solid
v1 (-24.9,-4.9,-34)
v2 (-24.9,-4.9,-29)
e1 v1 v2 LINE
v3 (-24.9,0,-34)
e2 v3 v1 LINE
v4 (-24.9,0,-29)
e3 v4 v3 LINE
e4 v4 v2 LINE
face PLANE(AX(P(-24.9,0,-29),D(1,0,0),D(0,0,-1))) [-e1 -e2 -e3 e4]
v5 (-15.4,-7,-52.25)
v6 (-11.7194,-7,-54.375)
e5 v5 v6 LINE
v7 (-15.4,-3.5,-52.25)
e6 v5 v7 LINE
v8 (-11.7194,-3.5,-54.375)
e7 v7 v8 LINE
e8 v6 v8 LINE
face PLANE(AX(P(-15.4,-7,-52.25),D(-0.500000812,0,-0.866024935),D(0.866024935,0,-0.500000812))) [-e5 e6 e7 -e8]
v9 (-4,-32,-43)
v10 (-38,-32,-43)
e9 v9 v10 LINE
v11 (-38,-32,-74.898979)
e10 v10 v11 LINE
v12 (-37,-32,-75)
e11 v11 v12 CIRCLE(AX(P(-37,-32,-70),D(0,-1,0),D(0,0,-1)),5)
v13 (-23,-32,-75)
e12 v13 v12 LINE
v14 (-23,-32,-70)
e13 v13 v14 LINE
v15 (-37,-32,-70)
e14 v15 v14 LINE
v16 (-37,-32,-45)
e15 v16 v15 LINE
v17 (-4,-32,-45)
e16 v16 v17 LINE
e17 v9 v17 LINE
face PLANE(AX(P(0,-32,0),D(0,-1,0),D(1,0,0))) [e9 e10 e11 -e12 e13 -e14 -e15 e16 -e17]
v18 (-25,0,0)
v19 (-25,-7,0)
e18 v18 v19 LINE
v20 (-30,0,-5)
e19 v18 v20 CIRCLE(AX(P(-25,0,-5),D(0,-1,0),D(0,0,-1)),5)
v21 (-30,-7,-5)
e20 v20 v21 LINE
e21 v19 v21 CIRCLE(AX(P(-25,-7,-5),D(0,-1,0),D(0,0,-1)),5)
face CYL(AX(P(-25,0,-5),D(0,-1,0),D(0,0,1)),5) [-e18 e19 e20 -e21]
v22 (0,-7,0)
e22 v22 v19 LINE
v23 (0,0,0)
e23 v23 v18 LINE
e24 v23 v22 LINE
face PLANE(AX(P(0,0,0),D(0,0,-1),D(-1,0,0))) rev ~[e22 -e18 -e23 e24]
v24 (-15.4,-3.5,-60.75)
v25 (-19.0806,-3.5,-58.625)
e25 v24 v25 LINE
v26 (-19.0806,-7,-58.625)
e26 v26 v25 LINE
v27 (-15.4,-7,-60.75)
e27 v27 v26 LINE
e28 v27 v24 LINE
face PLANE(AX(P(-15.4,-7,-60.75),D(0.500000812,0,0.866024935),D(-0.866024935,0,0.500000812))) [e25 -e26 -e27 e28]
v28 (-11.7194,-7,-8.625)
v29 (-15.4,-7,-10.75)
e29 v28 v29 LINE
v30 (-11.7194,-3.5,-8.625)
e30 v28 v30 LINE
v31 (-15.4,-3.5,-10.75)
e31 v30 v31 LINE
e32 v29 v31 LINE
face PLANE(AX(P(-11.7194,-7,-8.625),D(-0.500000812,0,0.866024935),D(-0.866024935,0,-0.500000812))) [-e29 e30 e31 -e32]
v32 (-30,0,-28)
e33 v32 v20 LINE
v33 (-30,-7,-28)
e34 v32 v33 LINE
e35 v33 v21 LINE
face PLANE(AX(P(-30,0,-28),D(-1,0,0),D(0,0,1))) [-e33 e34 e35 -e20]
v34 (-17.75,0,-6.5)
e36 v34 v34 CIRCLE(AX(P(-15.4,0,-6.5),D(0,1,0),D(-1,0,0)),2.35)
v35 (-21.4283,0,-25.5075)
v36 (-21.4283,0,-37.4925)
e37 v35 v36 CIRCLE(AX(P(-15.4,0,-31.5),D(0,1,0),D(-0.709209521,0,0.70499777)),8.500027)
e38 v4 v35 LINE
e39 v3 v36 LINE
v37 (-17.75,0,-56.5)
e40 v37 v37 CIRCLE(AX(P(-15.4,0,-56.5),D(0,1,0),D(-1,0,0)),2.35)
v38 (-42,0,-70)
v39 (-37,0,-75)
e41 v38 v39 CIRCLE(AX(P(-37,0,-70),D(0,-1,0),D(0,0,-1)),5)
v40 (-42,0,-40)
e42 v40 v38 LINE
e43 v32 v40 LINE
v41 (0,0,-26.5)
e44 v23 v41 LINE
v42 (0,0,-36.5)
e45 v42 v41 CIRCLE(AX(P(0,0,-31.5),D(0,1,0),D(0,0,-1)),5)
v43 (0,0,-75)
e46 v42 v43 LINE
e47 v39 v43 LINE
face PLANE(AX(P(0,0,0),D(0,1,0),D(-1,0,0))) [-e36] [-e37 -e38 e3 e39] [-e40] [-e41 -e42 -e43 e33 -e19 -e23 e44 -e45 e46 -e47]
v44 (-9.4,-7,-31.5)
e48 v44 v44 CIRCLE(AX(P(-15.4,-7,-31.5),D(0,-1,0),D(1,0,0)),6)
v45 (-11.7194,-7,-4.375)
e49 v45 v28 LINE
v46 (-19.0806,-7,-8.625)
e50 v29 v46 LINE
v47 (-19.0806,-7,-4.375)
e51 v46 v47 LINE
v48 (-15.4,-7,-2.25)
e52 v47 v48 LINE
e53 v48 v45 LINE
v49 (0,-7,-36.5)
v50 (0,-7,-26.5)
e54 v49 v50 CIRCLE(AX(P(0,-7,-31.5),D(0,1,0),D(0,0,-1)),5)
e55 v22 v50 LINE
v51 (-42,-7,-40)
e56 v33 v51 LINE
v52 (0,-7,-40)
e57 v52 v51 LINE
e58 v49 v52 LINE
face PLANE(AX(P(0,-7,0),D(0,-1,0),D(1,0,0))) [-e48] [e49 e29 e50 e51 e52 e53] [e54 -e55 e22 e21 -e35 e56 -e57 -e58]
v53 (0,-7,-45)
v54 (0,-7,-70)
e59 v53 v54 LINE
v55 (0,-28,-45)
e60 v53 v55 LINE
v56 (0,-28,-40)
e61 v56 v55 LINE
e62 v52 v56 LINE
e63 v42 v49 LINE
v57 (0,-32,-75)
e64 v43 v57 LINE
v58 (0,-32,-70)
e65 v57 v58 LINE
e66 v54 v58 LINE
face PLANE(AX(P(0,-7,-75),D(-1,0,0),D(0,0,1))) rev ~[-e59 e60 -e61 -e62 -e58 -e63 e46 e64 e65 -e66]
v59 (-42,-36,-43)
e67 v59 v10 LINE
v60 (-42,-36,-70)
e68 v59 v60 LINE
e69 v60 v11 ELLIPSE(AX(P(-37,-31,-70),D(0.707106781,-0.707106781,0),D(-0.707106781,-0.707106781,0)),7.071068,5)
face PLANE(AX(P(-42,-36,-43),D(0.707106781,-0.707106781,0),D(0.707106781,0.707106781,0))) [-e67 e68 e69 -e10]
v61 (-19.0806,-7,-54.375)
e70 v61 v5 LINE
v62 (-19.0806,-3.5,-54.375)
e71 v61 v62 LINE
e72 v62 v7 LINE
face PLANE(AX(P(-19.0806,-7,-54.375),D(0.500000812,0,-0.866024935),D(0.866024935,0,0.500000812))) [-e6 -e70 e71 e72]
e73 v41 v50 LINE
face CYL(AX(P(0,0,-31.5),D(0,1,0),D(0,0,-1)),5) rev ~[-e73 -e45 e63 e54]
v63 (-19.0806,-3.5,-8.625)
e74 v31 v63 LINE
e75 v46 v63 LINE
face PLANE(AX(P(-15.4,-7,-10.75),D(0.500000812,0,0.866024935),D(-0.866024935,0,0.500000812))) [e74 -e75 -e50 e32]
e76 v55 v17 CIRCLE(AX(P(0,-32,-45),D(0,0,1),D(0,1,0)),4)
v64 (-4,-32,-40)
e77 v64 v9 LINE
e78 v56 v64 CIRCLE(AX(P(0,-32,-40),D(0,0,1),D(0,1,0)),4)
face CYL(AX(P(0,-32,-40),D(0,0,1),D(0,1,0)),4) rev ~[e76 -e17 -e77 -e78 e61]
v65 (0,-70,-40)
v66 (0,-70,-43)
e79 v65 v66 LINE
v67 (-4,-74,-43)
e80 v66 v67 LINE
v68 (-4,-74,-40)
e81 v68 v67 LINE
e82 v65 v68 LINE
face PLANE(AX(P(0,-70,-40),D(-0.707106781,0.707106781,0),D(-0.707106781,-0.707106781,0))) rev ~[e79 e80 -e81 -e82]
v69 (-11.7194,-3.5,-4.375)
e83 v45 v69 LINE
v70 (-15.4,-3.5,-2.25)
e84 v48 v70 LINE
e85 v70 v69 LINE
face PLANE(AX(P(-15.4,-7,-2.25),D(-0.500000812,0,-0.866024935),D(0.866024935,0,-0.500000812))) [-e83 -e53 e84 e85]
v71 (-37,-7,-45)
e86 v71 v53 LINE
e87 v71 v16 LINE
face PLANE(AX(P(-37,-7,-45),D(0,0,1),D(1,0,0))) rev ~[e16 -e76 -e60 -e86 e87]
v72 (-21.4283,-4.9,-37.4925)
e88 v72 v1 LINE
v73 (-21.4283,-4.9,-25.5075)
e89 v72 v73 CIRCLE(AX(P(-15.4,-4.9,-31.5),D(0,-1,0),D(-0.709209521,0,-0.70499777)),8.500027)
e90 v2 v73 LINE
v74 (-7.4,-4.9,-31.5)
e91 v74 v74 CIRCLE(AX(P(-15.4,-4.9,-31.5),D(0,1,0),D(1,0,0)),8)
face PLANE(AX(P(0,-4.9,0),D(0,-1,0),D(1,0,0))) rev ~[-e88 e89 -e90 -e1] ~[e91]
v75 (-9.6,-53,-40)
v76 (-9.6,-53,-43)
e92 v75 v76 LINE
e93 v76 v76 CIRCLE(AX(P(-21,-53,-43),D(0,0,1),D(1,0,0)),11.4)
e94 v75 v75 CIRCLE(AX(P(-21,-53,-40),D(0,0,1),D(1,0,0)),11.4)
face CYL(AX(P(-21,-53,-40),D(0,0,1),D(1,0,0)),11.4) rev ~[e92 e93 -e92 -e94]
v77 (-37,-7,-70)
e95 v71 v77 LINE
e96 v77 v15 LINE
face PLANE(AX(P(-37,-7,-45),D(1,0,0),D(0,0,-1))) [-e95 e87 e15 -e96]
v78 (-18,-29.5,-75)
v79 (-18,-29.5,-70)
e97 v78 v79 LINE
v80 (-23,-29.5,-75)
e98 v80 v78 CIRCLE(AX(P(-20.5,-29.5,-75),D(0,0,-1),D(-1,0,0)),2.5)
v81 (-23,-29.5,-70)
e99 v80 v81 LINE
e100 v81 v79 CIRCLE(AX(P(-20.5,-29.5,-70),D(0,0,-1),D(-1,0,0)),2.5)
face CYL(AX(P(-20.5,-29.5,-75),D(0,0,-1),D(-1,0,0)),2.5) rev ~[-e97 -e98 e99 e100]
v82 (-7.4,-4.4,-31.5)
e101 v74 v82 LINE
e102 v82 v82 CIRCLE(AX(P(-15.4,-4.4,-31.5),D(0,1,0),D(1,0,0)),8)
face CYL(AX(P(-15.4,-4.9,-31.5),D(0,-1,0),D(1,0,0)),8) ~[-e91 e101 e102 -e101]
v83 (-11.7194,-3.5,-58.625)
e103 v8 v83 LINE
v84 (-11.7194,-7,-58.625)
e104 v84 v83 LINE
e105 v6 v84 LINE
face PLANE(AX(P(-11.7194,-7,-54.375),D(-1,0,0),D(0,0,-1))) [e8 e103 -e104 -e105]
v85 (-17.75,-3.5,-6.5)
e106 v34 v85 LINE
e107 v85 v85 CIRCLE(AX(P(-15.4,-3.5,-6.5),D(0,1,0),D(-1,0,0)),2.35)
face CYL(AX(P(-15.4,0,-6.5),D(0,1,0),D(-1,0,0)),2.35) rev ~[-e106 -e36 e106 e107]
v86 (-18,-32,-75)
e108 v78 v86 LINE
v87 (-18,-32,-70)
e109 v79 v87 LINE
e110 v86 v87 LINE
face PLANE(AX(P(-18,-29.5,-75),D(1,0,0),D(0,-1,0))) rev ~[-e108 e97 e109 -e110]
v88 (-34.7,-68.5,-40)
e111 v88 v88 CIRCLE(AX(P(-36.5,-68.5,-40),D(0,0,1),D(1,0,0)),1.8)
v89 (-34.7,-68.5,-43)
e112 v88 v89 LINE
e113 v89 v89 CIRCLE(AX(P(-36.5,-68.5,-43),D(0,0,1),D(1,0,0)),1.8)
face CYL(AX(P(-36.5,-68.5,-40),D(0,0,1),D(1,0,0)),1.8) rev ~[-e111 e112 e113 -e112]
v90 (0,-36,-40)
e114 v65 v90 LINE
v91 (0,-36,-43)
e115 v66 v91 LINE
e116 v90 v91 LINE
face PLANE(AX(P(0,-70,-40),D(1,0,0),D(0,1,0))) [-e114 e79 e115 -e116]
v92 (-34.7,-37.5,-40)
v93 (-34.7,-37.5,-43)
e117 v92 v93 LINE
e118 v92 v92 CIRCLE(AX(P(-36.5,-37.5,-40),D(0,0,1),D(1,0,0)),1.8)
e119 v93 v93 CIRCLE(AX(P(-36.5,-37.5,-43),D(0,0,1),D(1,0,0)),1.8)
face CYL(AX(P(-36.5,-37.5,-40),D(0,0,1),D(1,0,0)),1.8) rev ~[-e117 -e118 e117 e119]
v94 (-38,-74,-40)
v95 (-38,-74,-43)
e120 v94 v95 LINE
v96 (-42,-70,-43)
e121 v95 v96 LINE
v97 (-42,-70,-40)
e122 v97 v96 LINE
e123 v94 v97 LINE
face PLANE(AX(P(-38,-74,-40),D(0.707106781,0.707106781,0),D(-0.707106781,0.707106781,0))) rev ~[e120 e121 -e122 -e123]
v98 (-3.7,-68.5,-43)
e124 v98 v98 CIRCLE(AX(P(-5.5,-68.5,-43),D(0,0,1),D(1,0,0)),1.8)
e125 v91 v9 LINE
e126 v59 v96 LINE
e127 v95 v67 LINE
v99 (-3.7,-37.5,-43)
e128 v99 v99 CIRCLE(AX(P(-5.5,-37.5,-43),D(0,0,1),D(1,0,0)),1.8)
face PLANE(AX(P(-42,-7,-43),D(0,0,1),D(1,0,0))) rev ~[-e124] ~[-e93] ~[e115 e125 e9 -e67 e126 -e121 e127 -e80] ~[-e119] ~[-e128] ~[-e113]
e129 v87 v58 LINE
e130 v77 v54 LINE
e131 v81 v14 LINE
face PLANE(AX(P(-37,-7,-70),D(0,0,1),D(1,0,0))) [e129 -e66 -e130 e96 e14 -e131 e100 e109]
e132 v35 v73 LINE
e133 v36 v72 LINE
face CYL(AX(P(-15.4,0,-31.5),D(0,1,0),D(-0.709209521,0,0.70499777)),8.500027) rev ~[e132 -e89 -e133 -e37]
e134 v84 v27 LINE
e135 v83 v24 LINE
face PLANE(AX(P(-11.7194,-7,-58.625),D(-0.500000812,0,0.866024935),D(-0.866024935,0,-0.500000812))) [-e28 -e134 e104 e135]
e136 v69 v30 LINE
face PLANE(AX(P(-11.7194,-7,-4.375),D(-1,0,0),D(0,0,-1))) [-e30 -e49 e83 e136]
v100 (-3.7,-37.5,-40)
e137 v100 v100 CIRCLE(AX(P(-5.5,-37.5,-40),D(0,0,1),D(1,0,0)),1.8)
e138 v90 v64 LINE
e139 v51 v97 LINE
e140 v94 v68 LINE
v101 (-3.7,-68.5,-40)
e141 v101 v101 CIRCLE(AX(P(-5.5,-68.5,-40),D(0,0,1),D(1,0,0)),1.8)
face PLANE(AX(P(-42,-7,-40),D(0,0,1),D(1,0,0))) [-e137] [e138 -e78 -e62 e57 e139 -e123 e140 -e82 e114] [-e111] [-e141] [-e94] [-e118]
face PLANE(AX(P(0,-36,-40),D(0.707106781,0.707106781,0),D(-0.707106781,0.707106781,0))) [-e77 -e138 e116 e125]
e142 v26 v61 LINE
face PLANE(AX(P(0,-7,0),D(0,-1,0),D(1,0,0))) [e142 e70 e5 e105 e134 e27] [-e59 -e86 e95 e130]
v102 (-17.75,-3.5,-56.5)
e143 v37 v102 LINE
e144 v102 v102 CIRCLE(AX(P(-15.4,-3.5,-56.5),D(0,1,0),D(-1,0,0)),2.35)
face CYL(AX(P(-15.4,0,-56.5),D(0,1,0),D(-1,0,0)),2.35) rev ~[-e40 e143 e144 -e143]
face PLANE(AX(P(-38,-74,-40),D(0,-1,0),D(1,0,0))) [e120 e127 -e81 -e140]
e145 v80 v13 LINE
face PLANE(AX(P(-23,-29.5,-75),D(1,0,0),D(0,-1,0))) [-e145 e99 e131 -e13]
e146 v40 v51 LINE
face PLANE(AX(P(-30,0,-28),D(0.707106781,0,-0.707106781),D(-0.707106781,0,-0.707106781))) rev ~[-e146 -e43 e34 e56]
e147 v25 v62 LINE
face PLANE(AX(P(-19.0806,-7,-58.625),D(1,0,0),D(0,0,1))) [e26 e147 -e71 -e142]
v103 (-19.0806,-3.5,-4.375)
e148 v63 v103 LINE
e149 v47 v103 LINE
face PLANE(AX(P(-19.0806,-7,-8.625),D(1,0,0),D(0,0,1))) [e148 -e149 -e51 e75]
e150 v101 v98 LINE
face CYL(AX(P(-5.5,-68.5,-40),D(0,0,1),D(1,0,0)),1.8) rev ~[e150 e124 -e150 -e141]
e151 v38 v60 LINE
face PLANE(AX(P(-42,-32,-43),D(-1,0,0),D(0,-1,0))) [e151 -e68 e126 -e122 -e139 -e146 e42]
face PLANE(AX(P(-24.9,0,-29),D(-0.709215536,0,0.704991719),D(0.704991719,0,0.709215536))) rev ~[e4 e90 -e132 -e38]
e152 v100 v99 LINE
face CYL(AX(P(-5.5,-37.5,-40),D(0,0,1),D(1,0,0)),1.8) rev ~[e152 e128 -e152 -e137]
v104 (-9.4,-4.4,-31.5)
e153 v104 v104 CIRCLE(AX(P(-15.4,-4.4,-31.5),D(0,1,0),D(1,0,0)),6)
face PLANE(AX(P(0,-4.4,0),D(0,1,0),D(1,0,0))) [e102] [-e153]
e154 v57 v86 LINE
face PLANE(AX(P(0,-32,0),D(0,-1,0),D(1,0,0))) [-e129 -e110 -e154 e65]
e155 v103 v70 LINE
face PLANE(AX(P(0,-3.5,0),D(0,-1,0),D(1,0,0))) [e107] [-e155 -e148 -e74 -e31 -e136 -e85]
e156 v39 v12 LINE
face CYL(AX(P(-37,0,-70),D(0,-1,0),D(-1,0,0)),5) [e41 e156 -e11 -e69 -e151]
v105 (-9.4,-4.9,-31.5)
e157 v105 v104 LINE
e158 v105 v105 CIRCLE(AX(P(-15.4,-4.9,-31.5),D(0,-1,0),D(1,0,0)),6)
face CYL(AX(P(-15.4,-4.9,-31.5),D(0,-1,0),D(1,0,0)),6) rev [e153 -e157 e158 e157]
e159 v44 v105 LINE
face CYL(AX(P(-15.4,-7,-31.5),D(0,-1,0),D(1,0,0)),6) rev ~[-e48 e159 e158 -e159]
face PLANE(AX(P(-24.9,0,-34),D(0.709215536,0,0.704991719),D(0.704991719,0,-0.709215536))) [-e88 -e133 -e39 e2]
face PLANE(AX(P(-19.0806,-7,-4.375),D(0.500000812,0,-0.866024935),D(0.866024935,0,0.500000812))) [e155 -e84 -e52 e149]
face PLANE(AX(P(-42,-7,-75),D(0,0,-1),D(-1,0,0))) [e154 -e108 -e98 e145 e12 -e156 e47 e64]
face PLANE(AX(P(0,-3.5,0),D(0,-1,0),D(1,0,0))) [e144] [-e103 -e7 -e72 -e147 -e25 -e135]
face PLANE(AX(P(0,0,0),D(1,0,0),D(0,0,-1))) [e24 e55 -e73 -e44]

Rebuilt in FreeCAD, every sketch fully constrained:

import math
import FreeCAD as App
import Part
import Sketcher

V = App.Vector
Q = App.Units.Quantity


def edges_at(feature, points):
    """Names of the edges that pass closest to the given points."""
    edges = feature.Shape.Edges
    near = lambda p: min(range(len(edges)), key=lambda i: edges[i].distToShape(Part.Vertex(*p))[0])
    return sorted({f"Edge{near(p) + 1}" for p in points})

doc = App.newDocument("Part")
params = doc.addObject("Spreadsheet::Sheet", "Params")
for row, (alias, value) in enumerate([
    ("sketch1_radius", "5 mm"),
    ("sketch1_diameter", "4.7 mm"),
    ("sketch1_radius2", "8.5 mm"),
    ("sketch1_width", "42 mm"),
    ("sketch1_width2", "30 mm"),
    ("pad1_length", "7 mm"),
    ("sketch2_height", "4.25 mm"),
    ("sketch2_length", "4.25 mm"),
    ("pocket1_length", "3.5 mm"),
    ("sketch3_diameter", "12 mm"),
    ("sketch3_radius", "8.5 mm"),
    ("sketch3_height", "5 mm"),
    ("pad2_length", "2.1 mm"),
    ("sketch4_diameter", "16 mm"),
    ("sketch4_diameter2", "12 mm"),
    ("pad3_length", "0.5 mm"),
    ("sketch5_height", "5 mm"),
    ("sketch5_width", "42 mm"),
    ("sketch5_height2", "25 mm"),
    ("pad4_length", "25 mm"),
    ("sketch6_diameter", "3.6 mm"),
    ("sketch6_diameter2", "22.8 mm"),
    ("pad5_length", "3 mm"),
    ("sketch7_radius", "4 mm"),
    ("pocket2_length", "5 mm"),
    ("sketch8_radius", "2.5 mm"),
    ("sketch8_height", "2.5 mm"),
    ("pocket3_length", "5 mm"),
    ("sketch9_width", "4 mm"),
    ("pad6_length", "32 mm"),
    ("fillet_radius", "5 mm"),
], start=1):
    params.set(f"A{row}", alias)
    params.set(f"B{row}", "=" + value)
    params.setAlias(f"B{row}", alias)

body = doc.addObject("PartDesign::Body", "Body")

sketch1 = body.newObject("Sketcher::SketchObject", "Sketch")
sketch1.AttachmentSupport = (doc.getObject("XZ_Plane"), [""])
sketch1.MapMode = "FlatFace"
sketch1.addGeometry(Part.ArcOfCircle(Part.Circle(V(0, -31.5, 0), V(0, 0, 1), 5), math.radians(90), math.radians(270)), False)
sketch1.addGeometry(Part.LineSegment(V(0, -36.5, 0), V(0, -75, 0)), False)
sketch1.addGeometry(Part.LineSegment(V(0, -75, 0), V(-42, -75, 0)), False)
sketch1.addGeometry(Part.LineSegment(V(-42, -75, 0), V(-42, -40, 0)), False)
sketch1.addGeometry(Part.LineSegment(V(-42, -40, 0), V(-30, -28, 0)), False)
sketch1.addGeometry(Part.LineSegment(V(-30, -28, 0), V(-30, 0, 0)), False)
sketch1.addGeometry(Part.LineSegment(V(-30, 0, 0), V(0, 0, 0)), False)
sketch1.addGeometry(Part.LineSegment(V(0, 0, 0), V(0, -26.5, 0)), False)
sketch1.addGeometry(Part.Circle(V(-15.4, -56.5, 0), V(0, 0, 1), 2.4), False)
sketch1.addGeometry(Part.LineSegment(V(-21.4, -25.5, 0), V(-24.9, -29, 0)), False)
sketch1.addGeometry(Part.LineSegment(V(-24.9, -29, 0), V(-24.9, -34, 0)), False)
sketch1.addGeometry(Part.LineSegment(V(-24.9, -34, 0), V(-21.4, -37.5, 0)), False)
sketch1.addGeometry(Part.ArcOfCircle(Part.Circle(V(-15.4, -31.5, 0), V(0, 0, 1), 8.5), math.radians(-135), math.radians(135)), False)
sketch1.addGeometry(Part.Circle(V(-15.4, -6.5, 0), V(0, 0, 1), 2.4), False)
sketch1.addConstraint(Sketcher.Constraint("Coincident", 0, 2, 1, 1))
sketch1.addConstraint(Sketcher.Constraint("Coincident", 1, 2, 2, 1))
sketch1.addConstraint(Sketcher.Constraint("Coincident", 2, 2, 3, 1))
sketch1.addConstraint(Sketcher.Constraint("Coincident", 3, 2, 4, 1))
sketch1.addConstraint(Sketcher.Constraint("Coincident", 4, 2, 5, 1))
sketch1.addConstraint(Sketcher.Constraint("Coincident", 5, 2, 6, 1))
sketch1.addConstraint(Sketcher.Constraint("Coincident", 6, 2, 7, 1))
sketch1.addConstraint(Sketcher.Constraint("Coincident", 7, 2, 0, 1))
sketch1.addConstraint(Sketcher.Constraint("Coincident", 9, 2, 10, 1))
sketch1.addConstraint(Sketcher.Constraint("Coincident", 10, 2, 11, 1))
sketch1.addConstraint(Sketcher.Constraint("Tangent", 11, 2, 12, 1))
sketch1.addConstraint(Sketcher.Constraint("Tangent", 12, 2, 9, 1))
sketch1.addConstraint(Sketcher.Constraint("Vertical", 1))
sketch1.addConstraint(Sketcher.Constraint("Horizontal", 2))
sketch1.addConstraint(Sketcher.Constraint("Vertical", 3))
sketch1.addConstraint(Sketcher.Constraint("Vertical", 5))
sketch1.addConstraint(Sketcher.Constraint("Horizontal", 6))
sketch1.addConstraint(Sketcher.Constraint("Vertical", 7))
sketch1.addConstraint(Sketcher.Constraint("Vertical", 10))
sketch1.addConstraint(Sketcher.Constraint("Coincident", 6, 2, -1, 1))
sketch1.addConstraint(Sketcher.Constraint("Equal", 8, 13))
sketch1.addConstraint(Sketcher.Constraint("PointOnObject", 0, 3, -2))
sketch1.addConstraint(Sketcher.Constraint("PointOnObject", 0, 2, -2))
sketch1.addConstraint(Sketcher.Constraint("Horizontal", 0, 3, 12, 3))
sketch1.addConstraint(Sketcher.Constraint("Vertical", 8, 3, 12, 3))
sketch1.addConstraint(Sketcher.Constraint("Vertical", 12, 3, 13, 3))
sketch1.addConstraint(Sketcher.Constraint("Vertical", 11, 2, 12, 2))
sketch1.addConstraint(Sketcher.Constraint("Radius", 0, Q("5 mm")))
sketch1.addConstraint(Sketcher.Constraint("Diameter", 8, Q("4.7 mm")))
sketch1.addConstraint(Sketcher.Constraint("Radius", 12, Q("8.5 mm")))
sketch1.addConstraint(Sketcher.Constraint("DistanceX", 2, 2, 2, 1, Q("42 mm")))
sketch1.addConstraint(Sketcher.Constraint("DistanceX", 6, 1, 6, 2, Q("30 mm")))
sketch1.addConstraint(Sketcher.Constraint("DistanceY", 3, 1, 3, 2, Q("35 mm")))
sketch1.addConstraint(Sketcher.Constraint("DistanceY", 10, 2, 10, 1, Q("5 mm")))
sketch1.addConstraint(Sketcher.Constraint("DistanceY", 1, 2, -1, 1, Q("75 mm")))
sketch1.addConstraint(Sketcher.Constraint("DistanceY", 8, 3, 0, 3, Q("25 mm")))
sketch1.addConstraint(Sketcher.Constraint("DistanceY", 12, 3, 13, 3, Q("25 mm")))
sketch1.addConstraint(Sketcher.Constraint("DistanceY", 3, 2, 4, 2, Q("12 mm")))
sketch1.addConstraint(Sketcher.Constraint("DistanceX", 8, 3, -1, 1, Q("15.4 mm")))
sketch1.addConstraint(Sketcher.Constraint("DistanceY", 13, 3, -1, 1, Q("6.5 mm")))
sketch1.addConstraint(Sketcher.Constraint("DistanceX", 9, 2, 12, 3, Q("9.5 mm")))
sketch1.setExpression("Constraints[27]", "Params.sketch1_radius")
sketch1.setExpression("Constraints[28]", "Params.sketch1_diameter")
sketch1.setExpression("Constraints[29]", "Params.sketch1_radius2")
sketch1.setExpression("Constraints[30]", "Params.sketch1_width")
sketch1.setExpression("Constraints[31]", "Params.sketch1_width2")
pad1 = body.newObject("PartDesign::Pad", "Pad")
pad1.Profile = sketch1
pad1.setExpression("Length", "Params.pad1_length")

sketch2 = body.newObject("Sketcher::SketchObject", "Sketch001")
sketch2.AttachmentSupport = (doc.getObject("XZ_Plane"), [""])
sketch2.MapMode = "FlatFace"
sketch2.AttachmentOffset = App.Placement(V(0, 0, 7), App.Rotation())
sketch2.addGeometry(Part.LineSegment(V(-19.1, -8.6, 0), V(-15.4, -10.8, 0)), False)
sketch2.addGeometry(Part.LineSegment(V(-15.4, -10.8, 0), V(-11.7, -8.6, 0)), False)
sketch2.addGeometry(Part.LineSegment(V(-11.7, -8.6, 0), V(-11.7, -4.4, 0)), False)
sketch2.addGeometry(Part.LineSegment(V(-11.7, -4.4, 0), V(-15.4, -2.2, 0)), False)
sketch2.addGeometry(Part.LineSegment(V(-15.4, -2.2, 0), V(-19.1, -4.4, 0)), False)
sketch2.addGeometry(Part.LineSegment(V(-19.1, -4.4, 0), V(-19.1, -8.6, 0)), False)
sketch2.addGeometry(Part.LineSegment(V(-11.7, -54.4, 0), V(-15.4, -52.2, 0)), False)
sketch2.addGeometry(Part.LineSegment(V(-15.4, -52.2, 0), V(-19.1, -54.4, 0)), False)
sketch2.addGeometry(Part.LineSegment(V(-19.1, -54.4, 0), V(-19.1, -58.6, 0)), False)
sketch2.addGeometry(Part.LineSegment(V(-19.1, -58.6, 0), V(-15.4, -60.8, 0)), False)
sketch2.addGeometry(Part.LineSegment(V(-15.4, -60.8, 0), V(-11.7, -58.6, 0)), False)
sketch2.addGeometry(Part.LineSegment(V(-11.7, -58.6, 0), V(-11.7, -54.4, 0)), False)
sketch2.addConstraint(Sketcher.Constraint("Coincident", 0, 2, 1, 1))
sketch2.addConstraint(Sketcher.Constraint("Coincident", 1, 2, 2, 1))
sketch2.addConstraint(Sketcher.Constraint("Coincident", 2, 2, 3, 1))
sketch2.addConstraint(Sketcher.Constraint("Coincident", 3, 2, 4, 1))
sketch2.addConstraint(Sketcher.Constraint("Coincident", 4, 2, 5, 1))
sketch2.addConstraint(Sketcher.Constraint("Coincident", 5, 2, 0, 1))
sketch2.addConstraint(Sketcher.Constraint("Coincident", 6, 2, 7, 1))
sketch2.addConstraint(Sketcher.Constraint("Coincident", 7, 2, 8, 1))
sketch2.addConstraint(Sketcher.Constraint("Coincident", 8, 2, 9, 1))
sketch2.addConstraint(Sketcher.Constraint("Coincident", 9, 2, 10, 1))
sketch2.addConstraint(Sketcher.Constraint("Coincident", 10, 2, 11, 1))
sketch2.addConstraint(Sketcher.Constraint("Coincident", 11, 2, 6, 1))
sketch2.addConstraint(Sketcher.Constraint("Vertical", 2))
sketch2.addConstraint(Sketcher.Constraint("Vertical", 5))
sketch2.addConstraint(Sketcher.Constraint("Vertical", 8))
sketch2.addConstraint(Sketcher.Constraint("Vertical", 11))
sketch2.addConstraint(Sketcher.Constraint("Parallel", 0, 3))
sketch2.addConstraint(Sketcher.Constraint("Parallel", 1, 4))
sketch2.addConstraint(Sketcher.Constraint("Parallel", 3, 6))
sketch2.addConstraint(Sketcher.Constraint("Parallel", 4, 7))
sketch2.addConstraint(Sketcher.Constraint("Parallel", 6, 9))
sketch2.addConstraint(Sketcher.Constraint("Parallel", 7, 10))
sketch2.addConstraint(Sketcher.Constraint("Horizontal", 2, 2, 4, 2))
sketch2.addConstraint(Sketcher.Constraint("Horizontal", 1, 2, 5, 2))
sketch2.addConstraint(Sketcher.Constraint("Horizontal", 8, 2, 10, 2))
sketch2.addConstraint(Sketcher.Constraint("Horizontal", 7, 2, 11, 2))
sketch2.addConstraint(Sketcher.Constraint("Vertical", 0, 2, 3, 2))
sketch2.addConstraint(Sketcher.Constraint("Vertical", 3, 2, 6, 2))
sketch2.addConstraint(Sketcher.Constraint("Vertical", 5, 2, 7, 2))
sketch2.addConstraint(Sketcher.Constraint("Equal", 5, 8))
sketch2.addConstraint(Sketcher.Constraint("DistanceY", 2, 1, 2, 2, Q("4.25 mm")))
sketch2.addConstraint(Sketcher.Constraint("Distance", 0, Q("4.25 mm")))
sketch2.addConstraint(Sketcher.Constraint("Angle", 0, Q("-30 deg")))
sketch2.addConstraint(Sketcher.Constraint("DistanceY", 7, 2, 4, 2, Q("50 mm")))
sketch2.addConstraint(Sketcher.Constraint("DistanceX", 0, 2, -1, 1, Q("15.4 mm")))
sketch2.addConstraint(Sketcher.Constraint("DistanceY", 0, 2, -1, 1, Q("10.75 mm")))
sketch2.setExpression("Constraints[30]", "Params.sketch2_height")
sketch2.setExpression("Constraints[31]", "Params.sketch2_length")
pocket1 = body.newObject("PartDesign::Pocket", "Pocket")
pocket1.Profile = sketch2
pocket1.setExpression("Length", "Params.pocket1_length")

sketch3 = body.newObject("Sketcher::SketchObject", "Sketch002")
sketch3.AttachmentSupport = (doc.getObject("XZ_Plane"), [""])
sketch3.MapMode = "FlatFace"
sketch3.AttachmentOffset = App.Placement(V(0, 0, 7), App.Rotation())
sketch3.addGeometry(Part.LineSegment(V(-24.9, -34, 0), V(-21.4, -37.5, 0)), False)
sketch3.addGeometry(Part.ArcOfCircle(Part.Circle(V(-15.4, -31.5, 0), V(0, 0, 1), 8.5), math.radians(-135), math.radians(135)), False)
sketch3.addGeometry(Part.LineSegment(V(-21.4, -25.5, 0), V(-24.9, -29, 0)), False)
sketch3.addGeometry(Part.LineSegment(V(-24.9, -29, 0), V(-24.9, -34, 0)), False)
sketch3.addGeometry(Part.Circle(V(-15.4, -31.5, 0), V(0, 0, 1), 6), False)
sketch3.addConstraint(Sketcher.Constraint("Tangent", 0, 2, 1, 1))
sketch3.addConstraint(Sketcher.Constraint("Tangent", 1, 2, 2, 1))
sketch3.addConstraint(Sketcher.Constraint("Coincident", 2, 2, 3, 1))
sketch3.addConstraint(Sketcher.Constraint("Coincident", 3, 2, 0, 1))
sketch3.addConstraint(Sketcher.Constraint("Vertical", 3))
sketch3.addConstraint(Sketcher.Constraint("Coincident", 4, 3, 1, 3))
sketch3.addConstraint(Sketcher.Constraint("Vertical", 0, 2, 1, 2))
sketch3.addConstraint(Sketcher.Constraint("Diameter", 4, Q("12 mm")))
sketch3.addConstraint(Sketcher.Constraint("Radius", 1, Q("8.5 mm")))
sketch3.addConstraint(Sketcher.Constraint("DistanceY", 3, 2, 3, 1, Q("5 mm")))
sketch3.addConstraint(Sketcher.Constraint("DistanceY", 2, 2, -1, 1, Q("29 mm")))
sketch3.addConstraint(Sketcher.Constraint("DistanceX", 1, 3, -1, 1, Q("15.4 mm")))
sketch3.addConstraint(Sketcher.Constraint("DistanceX", 2, 2, -1, 1, Q("24.9 mm")))
sketch3.setExpression("Constraints[7]", "Params.sketch3_diameter")
sketch3.setExpression("Constraints[8]", "Params.sketch3_radius")
sketch3.setExpression("Constraints[9]", "Params.sketch3_height")
pad2 = body.newObject("PartDesign::Pad", "Pad001")
pad2.Profile = sketch3
pad2.setExpression("Length", "Params.pad2_length")
pad2.Reversed = True

sketch4 = body.newObject("Sketcher::SketchObject", "Sketch003")
sketch4.AttachmentSupport = (doc.getObject("XZ_Plane"), [""])
sketch4.MapMode = "FlatFace"
sketch4.AttachmentOffset = App.Placement(V(0, 0, 4.9), App.Rotation())
sketch4.addGeometry(Part.Circle(V(-15, -32, 0), V(0, 0, 1), 8), False)
sketch4.addGeometry(Part.Circle(V(-15, -32, 0), V(0, 0, 1), 6), False)
sketch4.addConstraint(Sketcher.Constraint("Coincident", 1, 3, 0, 3))
sketch4.addConstraint(Sketcher.Constraint("Diameter", 0, Q("16 mm")))
sketch4.addConstraint(Sketcher.Constraint("Diameter", 1, Q("12 mm")))
sketch4.addConstraint(Sketcher.Constraint("DistanceX", 0, 3, -1, 1, Q("15.4 mm")))
sketch4.addConstraint(Sketcher.Constraint("DistanceY", 0, 3, -1, 1, Q("31.5 mm")))
sketch4.setExpression("Constraints[1]", "Params.sketch4_diameter")
sketch4.setExpression("Constraints[2]", "Params.sketch4_diameter2")
pad3 = body.newObject("PartDesign::Pad", "Pad002")
pad3.Profile = sketch4
pad3.setExpression("Length", "Params.pad3_length")
pad3.Reversed = True

sketch5 = body.newObject("Sketcher::SketchObject", "Sketch004")
sketch5.AttachmentSupport = (doc.getObject("XZ_Plane"), [""])
sketch5.MapMode = "FlatFace"
sketch5.AttachmentOffset = App.Placement(V(0, 0, 7), App.Rotation())
sketch5.addGeometry(Part.LineSegment(V(-42, -75, 0), V(0, -75, 0)), False)
sketch5.addGeometry(Part.LineSegment(V(0, -75, 0), V(0, -70, 0)), False)
sketch5.addGeometry(Part.LineSegment(V(0, -70, 0), V(-37, -70, 0)), False)
sketch5.addGeometry(Part.LineSegment(V(-37, -70, 0), V(-37, -45, 0)), False)
sketch5.addGeometry(Part.LineSegment(V(-37, -45, 0), V(0, -45, 0)), False)
sketch5.addGeometry(Part.LineSegment(V(0, -45, 0), V(0, -40, 0)), False)
sketch5.addGeometry(Part.LineSegment(V(0, -40, 0), V(-42, -40, 0)), False)
sketch5.addGeometry(Part.LineSegment(V(-42, -40, 0), V(-42, -75, 0)), False)
sketch5.addConstraint(Sketcher.Constraint("Coincident", 0, 2, 1, 1))
sketch5.addConstraint(Sketcher.Constraint("Coincident", 1, 2, 2, 1))
sketch5.addConstraint(Sketcher.Constraint("Coincident", 2, 2, 3, 1))
sketch5.addConstraint(Sketcher.Constraint("Coincident", 3, 2, 4, 1))
sketch5.addConstraint(Sketcher.Constraint("Coincident", 4, 2, 5, 1))
sketch5.addConstraint(Sketcher.Constraint("Coincident", 5, 2, 6, 1))
sketch5.addConstraint(Sketcher.Constraint("Coincident", 6, 2, 7, 1))
sketch5.addConstraint(Sketcher.Constraint("Coincident", 7, 2, 0, 1))
sketch5.addConstraint(Sketcher.Constraint("Horizontal", 0))
sketch5.addConstraint(Sketcher.Constraint("Vertical", 1))
sketch5.addConstraint(Sketcher.Constraint("Horizontal", 2))
sketch5.addConstraint(Sketcher.Constraint("Vertical", 3))
sketch5.addConstraint(Sketcher.Constraint("Horizontal", 4))
sketch5.addConstraint(Sketcher.Constraint("Vertical", 5))
sketch5.addConstraint(Sketcher.Constraint("Horizontal", 6))
sketch5.addConstraint(Sketcher.Constraint("Vertical", 7))
sketch5.addConstraint(Sketcher.Constraint("PointOnObject", 0, 2, -2))
sketch5.addConstraint(Sketcher.Constraint("PointOnObject", 4, 2, -2))
sketch5.addConstraint(Sketcher.Constraint("Equal", 1, 5))
sketch5.addConstraint(Sketcher.Constraint("DistanceY", 1, 1, 1, 2, Q("5 mm")))
sketch5.addConstraint(Sketcher.Constraint("DistanceX", 6, 2, 3, 2, Q("5 mm")))
sketch5.addConstraint(Sketcher.Constraint("DistanceX", 0, 1, 0, 2, Q("42 mm")))
sketch5.addConstraint(Sketcher.Constraint("DistanceY", 3, 1, 3, 2, Q("25 mm")))
sketch5.addConstraint(Sketcher.Constraint("DistanceY", 0, 2, -1, 1, Q("75 mm")))
sketch5.setExpression("Constraints[19]", "Params.sketch5_height")
sketch5.setExpression("Constraints[21]", "Params.sketch5_width")
sketch5.setExpression("Constraints[22]", "Params.sketch5_height2")
pad4 = body.newObject("PartDesign::Pad", "Pad003")
pad4.Profile = sketch5
pad4.setExpression("Length", "Params.pad4_length")

sketch6 = body.newObject("Sketcher::SketchObject", "Sketch005")
sketch6.AttachmentSupport = (doc.getObject("XY_Plane"), [""])
sketch6.MapMode = "FlatFace"
sketch6.AttachmentOffset = App.Placement(V(0, 0, -40), App.Rotation())
sketch6.addGeometry(Part.LineSegment(V(-4, -32, 0), V(-42, -32, 0)), False)
sketch6.addGeometry(Part.LineSegment(V(-42, -32, 0), V(-42, -70, 0)), False)
sketch6.addGeometry(Part.LineSegment(V(-42, -70, 0), V(-38, -74, 0)), False)
sketch6.addGeometry(Part.LineSegment(V(-38, -74, 0), V(-4, -74, 0)), False)
sketch6.addGeometry(Part.LineSegment(V(-4, -74, 0), V(0, -70, 0)), False)
sketch6.addGeometry(Part.LineSegment(V(0, -70, 0), V(0, -36, 0)), False)
sketch6.addGeometry(Part.LineSegment(V(0, -36, 0), V(-4, -32, 0)), False)
sketch6.addGeometry(Part.Circle(V(-36.5, -68.5, 0), V(0, 0, 1), 1.8), False)
sketch6.addGeometry(Part.Circle(V(-5.5, -68.5, 0), V(0, 0, 1), 1.8), False)
sketch6.addGeometry(Part.Circle(V(-36.5, -37.5, 0), V(0, 0, 1), 1.8), False)
sketch6.addGeometry(Part.Circle(V(-21, -53, 0), V(0, 0, 1), 11.4), False)
sketch6.addGeometry(Part.Circle(V(-5.5, -37.5, 0), V(0, 0, 1), 1.8), False)
sketch6.addConstraint(Sketcher.Constraint("Coincident", 0, 2, 1, 1))
sketch6.addConstraint(Sketcher.Constraint("Coincident", 1, 2, 2, 1))
sketch6.addConstraint(Sketcher.Constraint("Coincident", 2, 2, 3, 1))
sketch6.addConstraint(Sketcher.Constraint("Coincident", 3, 2, 4, 1))
sketch6.addConstraint(Sketcher.Constraint("Coincident", 4, 2, 5, 1))
sketch6.addConstraint(Sketcher.Constraint("Coincident", 5, 2, 6, 1))
sketch6.addConstraint(Sketcher.Constraint("Coincident", 6, 2, 0, 1))
sketch6.addConstraint(Sketcher.Constraint("Horizontal", 0))
sketch6.addConstraint(Sketcher.Constraint("Vertical", 1))
sketch6.addConstraint(Sketcher.Constraint("Horizontal", 3))
sketch6.addConstraint(Sketcher.Constraint("Vertical", 5))
sketch6.addConstraint(Sketcher.Constraint("Equal", 7, 8))
sketch6.addConstraint(Sketcher.Constraint("Equal", 8, 9))
sketch6.addConstraint(Sketcher.Constraint("Equal", 9, 11))
sketch6.addConstraint(Sketcher.Constraint("PointOnObject", 4, 2, -2))
sketch6.addConstraint(Sketcher.Constraint("Perpendicular", 2, 4))
sketch6.addConstraint(Sketcher.Constraint("Perpendicular", 4, 6))
sketch6.addConstraint(Sketcher.Constraint("Horizontal", 7, 3, 8, 3))
sketch6.addConstraint(Sketcher.Constraint("Horizontal", 9, 3, 11, 3))
sketch6.addConstraint(Sketcher.Constraint("Horizontal", 1, 2, 4, 2))
sketch6.addConstraint(Sketcher.Constraint("Vertical", 7, 3, 9, 3))
sketch6.addConstraint(Sketcher.Constraint("Vertical", 8, 3, 11, 3))
sketch6.addConstraint(Sketcher.Constraint("Vertical", 3, 2, 6, 2))
sketch6.addConstraint(Sketcher.Constraint("Equal", 0, 1))
sketch6.addConstraint(Sketcher.Constraint("Equal", 3, 5))
sketch6.addConstraint(Sketcher.Constraint("Diameter", 7, Q("3.6 mm")))
sketch6.addConstraint(Sketcher.Constraint("Diameter", 10, Q("22.8 mm")))
sketch6.addConstraint(Sketcher.Constraint("DistanceX", 0, 2, -1, 1, Q("42 mm")))
sketch6.addConstraint(Sketcher.Constraint("DistanceX", 3, 2, -1, 1, Q("4 mm")))
sketch6.addConstraint(Sketcher.Constraint("DistanceX", 7, 3, 8, 3, Q("31 mm")))
sketch6.addConstraint(Sketcher.Constraint("DistanceY", 7, 3, 9, 3, Q("31 mm")))
sketch6.addConstraint(Sketcher.Constraint("DistanceX", 10, 3, -1, 1, Q("21 mm")))
sketch6.addConstraint(Sketcher.Constraint("DistanceY", 10, 3, -1, 1, Q("53 mm")))
sketch6.addConstraint(Sketcher.Constraint("DistanceY", 0, 2, -1, 1, Q("32 mm")))
sketch6.addConstraint(Sketcher.Constraint("DistanceX", 7, 3, -1, 1, Q("36.5 mm")))
sketch6.addConstraint(Sketcher.Constraint("DistanceY", 7, 3, -1, 1, Q("68.5 mm")))
sketch6.setExpression("Constraints[25]", "Params.sketch6_diameter")
sketch6.setExpression("Constraints[26]", "Params.sketch6_diameter2")
pad5 = body.newObject("PartDesign::Pad", "Pad004")
pad5.Profile = sketch6
pad5.setExpression("Length", "Params.pad5_length")
pad5.Reversed = True

sketch7 = body.newObject("Sketcher::SketchObject", "Sketch006")
sketch7.AttachmentSupport = (doc.getObject("XY_Plane"), [""])
sketch7.MapMode = "FlatFace"
sketch7.AttachmentOffset = App.Placement(V(0, 0, -40), App.Rotation())
sketch7.addGeometry(Part.LineSegment(V(-4, -32, 0), V(0, -32, 0)), False)
sketch7.addGeometry(Part.LineSegment(V(0, -32, 0), V(0, -28, 0)), False)
sketch7.addGeometry(Part.ArcOfCircle(Part.Circle(V(0, -32, 0), V(0, 0, 1), 4), math.radians(90), math.radians(180)), False)
sketch7.addConstraint(Sketcher.Constraint("Coincident", 0, 2, 1, 1))
sketch7.addConstraint(Sketcher.Constraint("Coincident", 1, 2, 2, 1))
sketch7.addConstraint(Sketcher.Constraint("Coincident", 2, 2, 0, 1))
sketch7.addConstraint(Sketcher.Constraint("Horizontal", 0))
sketch7.addConstraint(Sketcher.Constraint("Vertical", 1))
sketch7.addConstraint(Sketcher.Constraint("Coincident", 0, 2, 2, 3))
sketch7.addConstraint(Sketcher.Constraint("PointOnObject", 2, 3, -2))
sketch7.addConstraint(Sketcher.Constraint("Radius", 2, Q("4 mm")))
sketch7.addConstraint(Sketcher.Constraint("DistanceY", 2, 3, -1, 1, Q("32 mm")))
sketch7.setExpression("Constraints[7]", "Params.sketch7_radius")
pocket2 = body.newObject("PartDesign::Pocket", "Pocket001")
pocket2.Profile = sketch7
pocket2.setExpression("Length", "Params.pocket2_length")

sketch8 = body.newObject("Sketcher::SketchObject", "Sketch007")
sketch8.AttachmentSupport = (doc.getObject("XY_Plane"), [""])
sketch8.MapMode = "FlatFace"
sketch8.AttachmentOffset = App.Placement(V(0, 0, -75), App.Rotation())
sketch8.addGeometry(Part.LineSegment(V(-23, -32, 0), V(-23, -29.5, 0)), False)
sketch8.addGeometry(Part.ArcOfCircle(Part.Circle(V(-20.5, -29.5, 0), V(0, 0, 1), 2.5), math.radians(0), math.radians(180)), False)
sketch8.addGeometry(Part.LineSegment(V(-18, -29.5, 0), V(-18, -32, 0)), False)
sketch8.addGeometry(Part.LineSegment(V(-18, -32, 0), V(-23, -32, 0)), False)
sketch8.addConstraint(Sketcher.Constraint("Tangent", 0, 2, 1, 2))
sketch8.addConstraint(Sketcher.Constraint("Tangent", 1, 1, 2, 1))
sketch8.addConstraint(Sketcher.Constraint("Coincident", 2, 2, 3, 1))
sketch8.addConstraint(Sketcher.Constraint("Coincident", 3, 2, 0, 1))
sketch8.addConstraint(Sketcher.Constraint("Vertical", 0))
sketch8.addConstraint(Sketcher.Constraint("Vertical", 2))
sketch8.addConstraint(Sketcher.Constraint("Horizontal", 3))
sketch8.addConstraint(Sketcher.Constraint("Radius", 1, Q("2.5 mm")))
sketch8.addConstraint(Sketcher.Constraint("DistanceY", 0, 1, 0, 2, Q("2.5 mm")))
sketch8.addConstraint(Sketcher.Constraint("DistanceX", 0, 2, -1, 1, Q("23 mm")))
sketch8.addConstraint(Sketcher.Constraint("DistanceY", 2, 2, -1, 1, Q("32 mm")))
sketch8.setExpression("Constraints[7]", "Params.sketch8_radius")
sketch8.setExpression("Constraints[8]", "Params.sketch8_height")
pocket3 = body.newObject("PartDesign::Pocket", "Pocket002")
pocket3.Profile = sketch8
pocket3.setExpression("Length", "Params.pocket3_length")
pocket3.Reversed = True

sketch9 = body.newObject("Sketcher::SketchObject", "Sketch008")
sketch9.AttachmentSupport = (doc.getObject("XY_Plane"), [""])
sketch9.MapMode = "FlatFace"
sketch9.AttachmentOffset = App.Placement(V(0, 0, -43), App.Rotation())
sketch9.addGeometry(Part.LineSegment(V(-38, -32, 0), V(-42, -36, 0)), False)
sketch9.addGeometry(Part.LineSegment(V(-42, -36, 0), V(-42, -32, 0)), False)
sketch9.addGeometry(Part.LineSegment(V(-42, -32, 0), V(-38, -32, 0)), False)
sketch9.addConstraint(Sketcher.Constraint("Coincident", 0, 2, 1, 1))
sketch9.addConstraint(Sketcher.Constraint("Coincident", 1, 2, 2, 1))
sketch9.addConstraint(Sketcher.Constraint("Coincident", 2, 2, 0, 1))
sketch9.addConstraint(Sketcher.Constraint("Vertical", 1))
sketch9.addConstraint(Sketcher.Constraint("Horizontal", 2))
sketch9.addConstraint(Sketcher.Constraint("Equal", 2, 1))
sketch9.addConstraint(Sketcher.Constraint("DistanceX", 2, 1, 2, 2, Q("4 mm")))
sketch9.addConstraint(Sketcher.Constraint("DistanceX", 0, 2, -1, 1, Q("42 mm")))
sketch9.addConstraint(Sketcher.Constraint("DistanceY", 0, 2, -1, 1, Q("36 mm")))
sketch9.setExpression("Constraints[6]", "Params.sketch9_width")
pad6 = body.newObject("PartDesign::Pad", "Pad005")
pad6.Profile = sketch9
pad6.setExpression("Length", "Params.pad6_length")
pad6.Reversed = True
doc.recompute()

fillet = body.newObject("PartDesign::Fillet", "Fillet")
fillet.Base = (pad6, edges_at(pad6, [(-30, -3.5, 0), (-42, -18, -75)]))
fillet.setExpression("Radius", "Params.fillet_radius")

doc.recompute()
